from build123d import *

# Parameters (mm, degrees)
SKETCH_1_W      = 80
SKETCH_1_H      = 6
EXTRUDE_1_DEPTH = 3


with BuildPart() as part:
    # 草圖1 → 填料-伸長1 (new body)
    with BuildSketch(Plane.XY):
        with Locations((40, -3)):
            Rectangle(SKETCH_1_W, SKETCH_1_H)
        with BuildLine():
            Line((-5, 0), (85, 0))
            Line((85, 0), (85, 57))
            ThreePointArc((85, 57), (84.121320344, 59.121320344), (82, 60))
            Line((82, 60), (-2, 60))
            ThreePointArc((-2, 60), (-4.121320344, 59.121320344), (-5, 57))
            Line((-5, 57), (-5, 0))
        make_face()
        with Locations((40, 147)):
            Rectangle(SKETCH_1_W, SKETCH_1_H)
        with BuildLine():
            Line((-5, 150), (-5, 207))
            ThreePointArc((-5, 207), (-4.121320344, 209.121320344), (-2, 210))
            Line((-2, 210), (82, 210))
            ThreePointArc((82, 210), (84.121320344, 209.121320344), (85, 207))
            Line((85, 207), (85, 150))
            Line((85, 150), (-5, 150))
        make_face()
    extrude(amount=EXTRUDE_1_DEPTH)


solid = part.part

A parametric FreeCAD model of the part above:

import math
import FreeCAD as App
import Part
import Sketcher

doc = App.newDocument("Part")
body = doc.addObject("PartDesign::Body", "Body")
body.AllowCompound = True

# Sketch on XY plane
sketch1 = body.newObject("Sketcher::SketchObject", "Sketch")
sketch1.AttachmentSupport = (doc.getObject("XY_Plane"), [""])
sketch1.MapMode = "FlatFace"
sketch1.addGeometry(Part.LineSegment(App.Vector(0, 0, 0), App.Vector(0, -6, 0)), False)
sketch1.addGeometry(Part.LineSegment(App.Vector(0, -6, 0), App.Vector(80, -6, 0)), False)
sketch1.addGeometry(Part.LineSegment(App.Vector(80, -6, 0), App.Vector(80, 0, 0)), False)
sketch1.addGeometry(Part.LineSegment(App.Vector(80, 0, 0), App.Vector(85, 0, 0)), False)
sketch1.addGeometry(Part.LineSegment(App.Vector(85, 0, 0), App.Vector(85, 57, 0)), False)
sketch1.addGeometry(Part.ArcOfCircle(Part.Circle(App.Vector(82, 57, 0), App.Vector(0, 0, 1), 3), math.radians(0), math.radians(90)), False)
sketch1.addGeometry(Part.LineSegment(App.Vector(82, 60, 0), App.Vector(-2, 60, 0)), False)
sketch1.addGeometry(Part.ArcOfCircle(Part.Circle(App.Vector(-2, 57, 0), App.Vector(0, 0, 1), 3), math.radians(90), math.radians(180)), False)
sketch1.addGeometry(Part.LineSegment(App.Vector(-5, 57, 0), App.Vector(-5, 0, 0)), False)
sketch1.addGeometry(Part.LineSegment(App.Vector(-5, 0, 0), App.Vector(0, 0, 0)), False)
sketch1.addGeometry(Part.LineSegment(App.Vector(0, 150, 0), App.Vector(0, 144, 0)), False)
sketch1.addGeometry(Part.LineSegment(App.Vector(0, 144, 0), App.Vector(80, 144, 0)), False)
sketch1.addGeometry(Part.LineSegment(App.Vector(80, 144, 0), App.Vector(80, 150, 0)), False)
sketch1.addGeometry(Part.LineSegment(App.Vector(80, 150, 0), App.Vector(85, 150, 0)), False)
sketch1.addGeometry(Part.LineSegment(App.Vector(85, 150, 0), App.Vector(85, 207, 0)), False)
sketch1.addGeometry(Part.ArcOfCircle(Part.Circle(App.Vector(82, 207, 0), App.Vector(0, 0, 1), 3), math.radians(0), math.radians(90)), False)
sketch1.addGeometry(Part.LineSegment(App.Vector(82, 210, 0), App.Vector(-2, 210, 0)), False)
sketch1.addGeometry(Part.ArcOfCircle(Part.Circle(App.Vector(-2, 207, 0), App.Vector(0, 0, 1), 3), math.radians(90), math.radians(180)), False)
sketch1.addGeometry(Part.LineSegment(App.Vector(-5, 207, 0), App.Vector(-5, 150, 0)), False)
sketch1.addGeometry(Part.LineSegment(App.Vector(-5, 150, 0), App.Vector(0, 150, 0)), False)
sketch1.addConstraint(Sketcher.Constraint("Coincident", 0, 2, 1, 1))
sketch1.addConstraint(Sketcher.Constraint("Coincident", 1, 2, 2, 1))
sketch1.addConstraint(Sketcher.Constraint("Coincident", 2, 2, 3, 1))
sketch1.addConstraint(Sketcher.Constraint("Coincident", 3, 2, 4, 1))
sketch1.addConstraint(Sketcher.Constraint("Tangent", 4, 2, 5, 1))
sketch1.addConstraint(Sketcher.Constraint("Tangent", 5, 2, 6, 1))
sketch1.addConstraint(Sketcher.Constraint("Tangent", 6, 2, 7, 1))
sketch1.addConstraint(Sketcher.Constraint("Tangent", 7, 2, 8, 1))
sketch1.addConstraint(Sketcher.Constraint("Coincident", 8, 2, 9, 1))
sketch1.addConstraint(Sketcher.Constraint("Coincident", 9, 2, 0, 1))
sketch1.addConstraint(Sketcher.Constraint("Coincident", 10, 2, 11, 1))
sketch1.addConstraint(Sketcher.Constraint("Coincident", 11, 2, 12, 1))
sketch1.addConstraint(Sketcher.Constraint("Coincident", 12, 2, 13, 1))
sketch1.addConstraint(Sketcher.Constraint("Coincident", 13, 2, 14, 1))
sketch1.addConstraint(Sketcher.Constraint("Tangent", 14, 2, 15, 1))
sketch1.addConstraint(Sketcher.Constraint("Tangent", 15, 2, 16, 1))
sketch1.addConstraint(Sketcher.Constraint("Tangent", 16, 2, 17, 1))
sketch1.addConstraint(Sketcher.Constraint("Tangent", 17, 2, 18, 1))
sketch1.addConstraint(Sketcher.Constraint("Coincident", 18, 2, 19, 1))
sketch1.addConstraint(Sketcher.Constraint("Coincident", 19, 2, 10, 1))
sketch1.addConstraint(Sketcher.Constraint("Vertical", 0))
sketch1.addConstraint(Sketcher.Constraint("Horizontal", 1))
sketch1.addConstraint(Sketcher.Constraint("Vertical", 2))
sketch1.addConstraint(Sketcher.Constraint("Horizontal", 3))
sketch1.addConstraint(Sketcher.Constraint("Vertical", 4))
sketch1.addConstraint(Sketcher.Constraint("Horizontal", 6))
sketch1.addConstraint(Sketcher.Constraint("Vertical", 8))
sketch1.addConstraint(Sketcher.Constraint("Horizontal", 9))
sketch1.addConstraint(Sketcher.Constraint("Vertical", 10))
sketch1.addConstraint(Sketcher.Constraint("Horizontal", 11))
sketch1.addConstraint(Sketcher.Constraint("Vertical", 12))
sketch1.addConstraint(Sketcher.Constraint("Horizontal", 13))
sketch1.addConstraint(Sketcher.Constraint("Vertical", 14))
sketch1.addConstraint(Sketcher.Constraint("Horizontal", 16))
sketch1.addConstraint(Sketcher.Constraint("Vertical", 18))
sketch1.addConstraint(Sketcher.Constraint("Horizontal", 19))
sketch1.addConstraint(Sketcher.Constraint("Coincident", 9, 2, -1, 1))
sketch1.addConstraint(Sketcher.Constraint("Equal", 5, 7))
sketch1.addConstraint(Sketcher.Constraint("Equal", 7, 15))
sketch1.addConstraint(Sketcher.Constraint("Equal", 15, 17))
sketch1.addConstraint(Sketcher.Constraint("PointOnObject", 2, 2, -1))
sketch1.addConstraint(Sketcher.Constraint("PointOnObject", 10, 2, -2))
sketch1.addConstraint(Sketcher.Constraint("Horizontal", 13, 2, 18, 2))
sketch1.addConstraint(Sketcher.Constraint("Vertical", 5, 3, 15, 3))
sketch1.addConstraint(Sketcher.Constraint("Vertical", 7, 3, 17, 3))
sketch1.addConstraint(Sketcher.Constraint("Vertical", 2, 2, 11, 2))
sketch1.addConstraint(Sketcher.Constraint("Equal", 3, 9))
sketch1.addConstraint(Sketcher.Constraint("Equal", 2, 10))
sketch1.addConstraint(Sketcher.Constraint("Equal", 8, 14))
sketch1.addConstraint(Sketcher.Constraint("Radius", 5, 3.0))
sketch1.addConstraint(Sketcher.Constraint("DistanceX", 1, 1, 1, 2, 80.0))
sketch1.addConstraint(Sketcher.Constraint("DistanceX", 3, 1, 3, 2, 5.0))
sketch1.addConstraint(Sketcher.Constraint("DistanceY", 0, 2, 0, 1, 6.0))
sketch1.addConstraint(Sketcher.Constraint("DistanceY", 4, 1, 4, 2, 57.0))
sketch1.addConstraint(Sketcher.Constraint("DistanceY", -1, 1, 15, 3, 207.0))
pad1 = body.newObject("PartDesign::Pad", "Pad")
pad1.Profile = sketch1
pad1.Length = 3

doc.recompute()
